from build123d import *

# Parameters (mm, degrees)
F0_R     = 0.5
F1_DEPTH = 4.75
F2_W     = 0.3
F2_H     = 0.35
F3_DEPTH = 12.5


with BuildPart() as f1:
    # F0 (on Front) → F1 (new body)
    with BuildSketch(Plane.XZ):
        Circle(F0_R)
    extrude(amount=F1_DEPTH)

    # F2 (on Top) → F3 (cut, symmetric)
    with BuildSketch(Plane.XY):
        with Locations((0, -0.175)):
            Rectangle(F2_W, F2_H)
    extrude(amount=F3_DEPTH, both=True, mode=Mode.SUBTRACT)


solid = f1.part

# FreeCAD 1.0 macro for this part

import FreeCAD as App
import Part
import Sketcher
Q = App.Units.Quantity

doc = App.newDocument("Part")
body = doc.addObject("PartDesign::Body", "Body")

sketch1 = body.newObject("Sketcher::SketchObject", "Sketch")
sketch1.AttachmentSupport = (doc.getObject("XZ_Plane"), [""])
sketch1.MapMode = "FlatFace"
sketch1.addGeometry(Part.Circle(App.Vector(0, 0, 0), App.Vector(0, 0, 1), 0.5), False)
sketch1.addConstraint([
    Sketcher.Constraint("Coincident", 0, 3, -1, 1),
    Sketcher.Constraint("Diameter", 0, Q("1 mm")),
])
pad1 = body.newObject("PartDesign::Pad", "Pad")
pad1.Profile = sketch1
pad1.Length = 4.75

sketch2 = body.newObject("Sketcher::SketchObject", "Sketch001")
sketch2.AttachmentSupport = (doc.getObject("XY_Plane"), [""])
sketch2.MapMode = "FlatFace"
sketch2.addGeometry([
    Part.LineSegment(App.Vector(-0.15, 0, 0), App.Vector(-0.15, -0.35, 0)),
    Part.LineSegment(App.Vector(-0.15, -0.35, 0), App.Vector(0.15, -0.35, 0)),
    Part.LineSegment(App.Vector(0.15, -0.35, 0), App.Vector(0.15, 0, 0)),
    Part.LineSegment(App.Vector(0.15, 0, 0), App.Vector(-0.15, 0, 0)),
], False)
sketch2.addConstraint([
    Sketcher.Constraint("Coincident", 0, 2, 1, 1),
    Sketcher.Constraint("Coincident", 1, 2, 2, 1),
    Sketcher.Constraint("Coincident", 2, 2, 3, 1),
    Sketcher.Constraint("Coincident", 3, 2, 0, 1),
    Sketcher.Constraint("Vertical", 0),
    Sketcher.Constraint("Horizontal", 1),
    Sketcher.Constraint("Vertical", 2),
    Sketcher.Constraint("Horizontal", 3),
    Sketcher.Constraint("Symmetric", 2, 2, 3, 2, -1, 1),
    Sketcher.Constraint("DistanceX", 1, 1, 1, 2, Q("0.3 mm")),
    Sketcher.Constraint("DistanceY", 0, 2, 0, 1, Q("0.35 mm")),
])
pocket1 = body.newObject("PartDesign::Pocket", "Pocket")
pocket1.Profile = sketch2
pocket1.Length = 25
pocket1.Midplane = True

doc.recompute()
